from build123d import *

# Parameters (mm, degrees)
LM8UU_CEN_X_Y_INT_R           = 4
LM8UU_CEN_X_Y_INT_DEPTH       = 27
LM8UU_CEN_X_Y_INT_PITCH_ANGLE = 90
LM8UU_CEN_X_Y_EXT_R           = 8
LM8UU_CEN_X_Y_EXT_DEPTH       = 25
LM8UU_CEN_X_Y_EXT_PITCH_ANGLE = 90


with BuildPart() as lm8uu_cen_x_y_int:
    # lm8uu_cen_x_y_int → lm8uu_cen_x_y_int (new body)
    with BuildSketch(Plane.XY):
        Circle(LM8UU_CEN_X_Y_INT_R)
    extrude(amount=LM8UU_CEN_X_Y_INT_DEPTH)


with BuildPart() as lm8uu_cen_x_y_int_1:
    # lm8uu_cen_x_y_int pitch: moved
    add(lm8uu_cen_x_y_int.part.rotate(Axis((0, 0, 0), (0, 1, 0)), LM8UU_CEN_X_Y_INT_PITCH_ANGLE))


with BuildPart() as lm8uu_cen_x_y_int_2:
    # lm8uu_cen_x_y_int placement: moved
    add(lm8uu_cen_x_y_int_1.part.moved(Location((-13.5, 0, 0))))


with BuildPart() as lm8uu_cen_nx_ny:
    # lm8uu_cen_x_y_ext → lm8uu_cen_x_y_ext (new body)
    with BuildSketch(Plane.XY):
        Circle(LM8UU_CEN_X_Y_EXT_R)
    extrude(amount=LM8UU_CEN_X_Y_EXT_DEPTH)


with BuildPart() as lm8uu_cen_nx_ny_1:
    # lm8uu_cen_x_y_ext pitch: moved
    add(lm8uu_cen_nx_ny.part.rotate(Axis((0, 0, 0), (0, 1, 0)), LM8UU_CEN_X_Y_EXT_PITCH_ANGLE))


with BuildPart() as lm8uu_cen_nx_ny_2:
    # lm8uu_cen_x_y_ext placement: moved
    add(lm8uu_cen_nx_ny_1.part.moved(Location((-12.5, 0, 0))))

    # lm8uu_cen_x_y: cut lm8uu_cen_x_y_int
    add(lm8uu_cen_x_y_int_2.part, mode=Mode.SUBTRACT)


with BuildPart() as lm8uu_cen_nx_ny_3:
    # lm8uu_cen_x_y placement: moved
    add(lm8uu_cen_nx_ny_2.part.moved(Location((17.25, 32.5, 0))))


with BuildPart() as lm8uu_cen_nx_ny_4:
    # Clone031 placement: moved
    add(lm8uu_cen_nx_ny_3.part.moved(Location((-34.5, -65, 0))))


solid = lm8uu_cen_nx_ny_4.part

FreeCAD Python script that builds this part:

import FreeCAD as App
import Part
import Sketcher
Q = App.Units.Quantity

doc = App.newDocument("Part")
body = doc.addObject("PartDesign::Body", "Body")

# Sketch on XY plane
sketch1 = body.newObject("Sketcher::SketchObject", "Sketch")
sketch1.AttachmentSupport = (doc.getObject("XY_Plane"), [""])
sketch1.MapMode = "FlatFace"
sketch1.addGeometry(Part.Circle(App.Vector(0, 0, 0), App.Vector(0, 0, 1), 4), False)
sketch1.addConstraint(Sketcher.Constraint("Coincident", 0, 3, -1, 1))
sketch1.addConstraint(Sketcher.Constraint("Diameter", 0, Q("8 mm")))
pad1 = body.newObject("PartDesign::Pad", "Pad")
pad1.Profile = sketch1
pad1.Length = 27
body2 = doc.addObject("PartDesign::Body", "Body001")
doc.recompute()

body.Placement = App.Placement(App.Vector(0, 0, 0), App.Rotation(App.Vector(0, 1, 0), 90))
boolean = body2.newObject("PartDesign::Boolean", "Boolean")
boolean.Type = "Fuse"
boolean.addObjects([body])
body3 = doc.addObject("PartDesign::Body", "Body002")
doc.recompute()

body2.Placement = App.Placement(App.Vector(-13.5, 0, 0), App.Rotation(App.Vector(0, 0, 1), 0))
boolean2 = body3.newObject("PartDesign::Boolean", "Boolean001")
boolean2.Type = "Fuse"
boolean2.addObjects([body2])
body4 = doc.addObject("PartDesign::Body", "Body003")

# Sketch on XY plane
sketch2 = body4.newObject("Sketcher::SketchObject", "Sketch001")
sketch2.AttachmentSupport = (doc.getObject("XY_Plane003"), [""])
sketch2.MapMode = "FlatFace"
sketch2.addGeometry(Part.Circle(App.Vector(0, 0, 0), App.Vector(0, 0, 1), 8), False)
sketch2.addConstraint(Sketcher.Constraint("Coincident", 0, 3, -1, 1))
sketch2.addConstraint(Sketcher.Constraint("Diameter", 0, Q("16 mm")))
pad2 = body4.newObject("PartDesign::Pad", "Pad001")
pad2.Profile = sketch2
pad2.Length = 25
body5 = doc.addObject("PartDesign::Body", "Body004")
doc.recompute()

body4.Placement = App.Placement(App.Vector(0, 0, 0), App.Rotation(App.Vector(0, 1, 0), 90))
boolean3 = body5.newObject("PartDesign::Boolean", "Boolean002")
boolean3.Type = "Fuse"
boolean3.addObjects([body4])
body6 = doc.addObject("PartDesign::Body", "Body005")
doc.recompute()

body5.Placement = App.Placement(App.Vector(-12.5, 0, 0), App.Rotation(App.Vector(0, 0, 1), 0))
boolean4 = body6.newObject("PartDesign::Boolean", "Boolean003")
boolean4.Type = "Fuse"
boolean4.addObjects([body5])
doc.recompute()

boolean5 = body6.newObject("PartDesign::Boolean", "Boolean004")
boolean5.Type = "Cut"
boolean5.addObjects([body3])
body7 = doc.addObject("PartDesign::Body", "Body006")
doc.recompute()

body6.Placement = App.Placement(App.Vector(17.25, 32.5, 0), App.Rotation(App.Vector(0, 0, 1), 0))
boolean6 = body7.newObject("PartDesign::Boolean", "Boolean005")
boolean6.Type = "Fuse"
boolean6.addObjects([body6])
body8 = doc.addObject("PartDesign::Body", "Body007")
doc.recompute()

body7.Placement = App.Placement(App.Vector(-34.5, -65, 0), App.Rotation(App.Vector(0, 0, 1), 0))
boolean7 = body8.newObject("PartDesign::Boolean", "Boolean006")
boolean7.Type = "Fuse"
boolean7.addObjects([body7])

doc.recompute()
